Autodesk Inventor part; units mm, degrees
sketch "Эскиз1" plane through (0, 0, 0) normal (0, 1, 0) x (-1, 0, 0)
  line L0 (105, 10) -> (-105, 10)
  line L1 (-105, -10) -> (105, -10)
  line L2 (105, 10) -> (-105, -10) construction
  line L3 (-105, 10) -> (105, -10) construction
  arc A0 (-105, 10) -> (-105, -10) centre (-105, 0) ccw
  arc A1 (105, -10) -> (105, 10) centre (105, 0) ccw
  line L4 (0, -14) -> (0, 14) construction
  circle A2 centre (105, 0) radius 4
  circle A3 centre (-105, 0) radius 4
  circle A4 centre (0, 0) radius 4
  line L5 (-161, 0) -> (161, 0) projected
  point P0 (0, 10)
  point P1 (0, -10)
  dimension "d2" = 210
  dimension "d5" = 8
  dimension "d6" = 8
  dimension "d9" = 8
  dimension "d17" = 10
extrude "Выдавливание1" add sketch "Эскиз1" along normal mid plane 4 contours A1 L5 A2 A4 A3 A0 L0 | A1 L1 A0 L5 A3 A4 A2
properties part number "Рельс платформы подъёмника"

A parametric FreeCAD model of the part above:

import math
import FreeCAD as App
import Part
import Sketcher
from FreeCAD import Vector

doc = App.newDocument("Part")
body = doc.addObject("PartDesign::Body", "Body")

# Sketch on XZ plane
sketch1 = body.newObject("Sketcher::SketchObject", "Sketch")
sketch1.AttachmentSupport = (doc.getObject("XZ_Plane"), [""])
sketch1.MapMode = "FlatFace"
sketch1.addGeometry(Part.LineSegment(Vector(-105, 10, 0), Vector(105, 10, 0)), False)
sketch1.addGeometry(Part.ArcOfCircle(Part.Circle(Vector(105, 0, 0), Vector(0, 0, 1), 10), math.radians(-90), math.radians(90)), False)
sketch1.addGeometry(Part.LineSegment(Vector(105, -10, 0), Vector(-105, -10, 0)), False)
sketch1.addGeometry(Part.ArcOfCircle(Part.Circle(Vector(-105, 0, 0), Vector(0, 0, 1), 10), math.radians(90), math.radians(270)), False)
sketch1.addGeometry(Part.Circle(Vector(-105, 0, 0), Vector(0, 0, 1), 4), False)
sketch1.addGeometry(Part.Circle(Vector(0, 0, 0), Vector(0, 0, 1), 4), False)
sketch1.addGeometry(Part.Circle(Vector(105, 0, 0), Vector(0, 0, 1), 4), False)
sketch1.addConstraint(Sketcher.Constraint("Tangent", 0, 2, 1, 2))
sketch1.addConstraint(Sketcher.Constraint("Tangent", 1, 1, 2, 1))
sketch1.addConstraint(Sketcher.Constraint("Tangent", 2, 2, 3, 2))
sketch1.addConstraint(Sketcher.Constraint("Tangent", 3, 1, 0, 1))
sketch1.addConstraint(Sketcher.Constraint("Horizontal", 0))
sketch1.addConstraint(Sketcher.Constraint("Horizontal", 2))
sketch1.addConstraint(Sketcher.Constraint("Coincident", 5, 3, -1, 1))
sketch1.addConstraint(Sketcher.Constraint("Coincident", 4, 3, 3, 3))
sketch1.addConstraint(Sketcher.Constraint("Coincident", 6, 3, 1, 3))
sketch1.addConstraint(Sketcher.Constraint("Equal", 4, 5))
sketch1.addConstraint(Sketcher.Constraint("Equal", 5, 6))
sketch1.addConstraint(Sketcher.Constraint("Symmetric", 1, 3, 3, 3, -1, 1))
sketch1.addConstraint(Sketcher.Constraint("Diameter", 4, 8.0))
sketch1.addConstraint(Sketcher.Constraint("Radius", 1, 10.0))
sketch1.addConstraint(Sketcher.Constraint("DistanceX", 0, 1, 0, 2, 210.0))
pad1 = body.newObject("PartDesign::Pad", "Pad")
pad1.Profile = sketch1
pad1.Length = 4
pad1.Midplane = True

doc.recompute()
